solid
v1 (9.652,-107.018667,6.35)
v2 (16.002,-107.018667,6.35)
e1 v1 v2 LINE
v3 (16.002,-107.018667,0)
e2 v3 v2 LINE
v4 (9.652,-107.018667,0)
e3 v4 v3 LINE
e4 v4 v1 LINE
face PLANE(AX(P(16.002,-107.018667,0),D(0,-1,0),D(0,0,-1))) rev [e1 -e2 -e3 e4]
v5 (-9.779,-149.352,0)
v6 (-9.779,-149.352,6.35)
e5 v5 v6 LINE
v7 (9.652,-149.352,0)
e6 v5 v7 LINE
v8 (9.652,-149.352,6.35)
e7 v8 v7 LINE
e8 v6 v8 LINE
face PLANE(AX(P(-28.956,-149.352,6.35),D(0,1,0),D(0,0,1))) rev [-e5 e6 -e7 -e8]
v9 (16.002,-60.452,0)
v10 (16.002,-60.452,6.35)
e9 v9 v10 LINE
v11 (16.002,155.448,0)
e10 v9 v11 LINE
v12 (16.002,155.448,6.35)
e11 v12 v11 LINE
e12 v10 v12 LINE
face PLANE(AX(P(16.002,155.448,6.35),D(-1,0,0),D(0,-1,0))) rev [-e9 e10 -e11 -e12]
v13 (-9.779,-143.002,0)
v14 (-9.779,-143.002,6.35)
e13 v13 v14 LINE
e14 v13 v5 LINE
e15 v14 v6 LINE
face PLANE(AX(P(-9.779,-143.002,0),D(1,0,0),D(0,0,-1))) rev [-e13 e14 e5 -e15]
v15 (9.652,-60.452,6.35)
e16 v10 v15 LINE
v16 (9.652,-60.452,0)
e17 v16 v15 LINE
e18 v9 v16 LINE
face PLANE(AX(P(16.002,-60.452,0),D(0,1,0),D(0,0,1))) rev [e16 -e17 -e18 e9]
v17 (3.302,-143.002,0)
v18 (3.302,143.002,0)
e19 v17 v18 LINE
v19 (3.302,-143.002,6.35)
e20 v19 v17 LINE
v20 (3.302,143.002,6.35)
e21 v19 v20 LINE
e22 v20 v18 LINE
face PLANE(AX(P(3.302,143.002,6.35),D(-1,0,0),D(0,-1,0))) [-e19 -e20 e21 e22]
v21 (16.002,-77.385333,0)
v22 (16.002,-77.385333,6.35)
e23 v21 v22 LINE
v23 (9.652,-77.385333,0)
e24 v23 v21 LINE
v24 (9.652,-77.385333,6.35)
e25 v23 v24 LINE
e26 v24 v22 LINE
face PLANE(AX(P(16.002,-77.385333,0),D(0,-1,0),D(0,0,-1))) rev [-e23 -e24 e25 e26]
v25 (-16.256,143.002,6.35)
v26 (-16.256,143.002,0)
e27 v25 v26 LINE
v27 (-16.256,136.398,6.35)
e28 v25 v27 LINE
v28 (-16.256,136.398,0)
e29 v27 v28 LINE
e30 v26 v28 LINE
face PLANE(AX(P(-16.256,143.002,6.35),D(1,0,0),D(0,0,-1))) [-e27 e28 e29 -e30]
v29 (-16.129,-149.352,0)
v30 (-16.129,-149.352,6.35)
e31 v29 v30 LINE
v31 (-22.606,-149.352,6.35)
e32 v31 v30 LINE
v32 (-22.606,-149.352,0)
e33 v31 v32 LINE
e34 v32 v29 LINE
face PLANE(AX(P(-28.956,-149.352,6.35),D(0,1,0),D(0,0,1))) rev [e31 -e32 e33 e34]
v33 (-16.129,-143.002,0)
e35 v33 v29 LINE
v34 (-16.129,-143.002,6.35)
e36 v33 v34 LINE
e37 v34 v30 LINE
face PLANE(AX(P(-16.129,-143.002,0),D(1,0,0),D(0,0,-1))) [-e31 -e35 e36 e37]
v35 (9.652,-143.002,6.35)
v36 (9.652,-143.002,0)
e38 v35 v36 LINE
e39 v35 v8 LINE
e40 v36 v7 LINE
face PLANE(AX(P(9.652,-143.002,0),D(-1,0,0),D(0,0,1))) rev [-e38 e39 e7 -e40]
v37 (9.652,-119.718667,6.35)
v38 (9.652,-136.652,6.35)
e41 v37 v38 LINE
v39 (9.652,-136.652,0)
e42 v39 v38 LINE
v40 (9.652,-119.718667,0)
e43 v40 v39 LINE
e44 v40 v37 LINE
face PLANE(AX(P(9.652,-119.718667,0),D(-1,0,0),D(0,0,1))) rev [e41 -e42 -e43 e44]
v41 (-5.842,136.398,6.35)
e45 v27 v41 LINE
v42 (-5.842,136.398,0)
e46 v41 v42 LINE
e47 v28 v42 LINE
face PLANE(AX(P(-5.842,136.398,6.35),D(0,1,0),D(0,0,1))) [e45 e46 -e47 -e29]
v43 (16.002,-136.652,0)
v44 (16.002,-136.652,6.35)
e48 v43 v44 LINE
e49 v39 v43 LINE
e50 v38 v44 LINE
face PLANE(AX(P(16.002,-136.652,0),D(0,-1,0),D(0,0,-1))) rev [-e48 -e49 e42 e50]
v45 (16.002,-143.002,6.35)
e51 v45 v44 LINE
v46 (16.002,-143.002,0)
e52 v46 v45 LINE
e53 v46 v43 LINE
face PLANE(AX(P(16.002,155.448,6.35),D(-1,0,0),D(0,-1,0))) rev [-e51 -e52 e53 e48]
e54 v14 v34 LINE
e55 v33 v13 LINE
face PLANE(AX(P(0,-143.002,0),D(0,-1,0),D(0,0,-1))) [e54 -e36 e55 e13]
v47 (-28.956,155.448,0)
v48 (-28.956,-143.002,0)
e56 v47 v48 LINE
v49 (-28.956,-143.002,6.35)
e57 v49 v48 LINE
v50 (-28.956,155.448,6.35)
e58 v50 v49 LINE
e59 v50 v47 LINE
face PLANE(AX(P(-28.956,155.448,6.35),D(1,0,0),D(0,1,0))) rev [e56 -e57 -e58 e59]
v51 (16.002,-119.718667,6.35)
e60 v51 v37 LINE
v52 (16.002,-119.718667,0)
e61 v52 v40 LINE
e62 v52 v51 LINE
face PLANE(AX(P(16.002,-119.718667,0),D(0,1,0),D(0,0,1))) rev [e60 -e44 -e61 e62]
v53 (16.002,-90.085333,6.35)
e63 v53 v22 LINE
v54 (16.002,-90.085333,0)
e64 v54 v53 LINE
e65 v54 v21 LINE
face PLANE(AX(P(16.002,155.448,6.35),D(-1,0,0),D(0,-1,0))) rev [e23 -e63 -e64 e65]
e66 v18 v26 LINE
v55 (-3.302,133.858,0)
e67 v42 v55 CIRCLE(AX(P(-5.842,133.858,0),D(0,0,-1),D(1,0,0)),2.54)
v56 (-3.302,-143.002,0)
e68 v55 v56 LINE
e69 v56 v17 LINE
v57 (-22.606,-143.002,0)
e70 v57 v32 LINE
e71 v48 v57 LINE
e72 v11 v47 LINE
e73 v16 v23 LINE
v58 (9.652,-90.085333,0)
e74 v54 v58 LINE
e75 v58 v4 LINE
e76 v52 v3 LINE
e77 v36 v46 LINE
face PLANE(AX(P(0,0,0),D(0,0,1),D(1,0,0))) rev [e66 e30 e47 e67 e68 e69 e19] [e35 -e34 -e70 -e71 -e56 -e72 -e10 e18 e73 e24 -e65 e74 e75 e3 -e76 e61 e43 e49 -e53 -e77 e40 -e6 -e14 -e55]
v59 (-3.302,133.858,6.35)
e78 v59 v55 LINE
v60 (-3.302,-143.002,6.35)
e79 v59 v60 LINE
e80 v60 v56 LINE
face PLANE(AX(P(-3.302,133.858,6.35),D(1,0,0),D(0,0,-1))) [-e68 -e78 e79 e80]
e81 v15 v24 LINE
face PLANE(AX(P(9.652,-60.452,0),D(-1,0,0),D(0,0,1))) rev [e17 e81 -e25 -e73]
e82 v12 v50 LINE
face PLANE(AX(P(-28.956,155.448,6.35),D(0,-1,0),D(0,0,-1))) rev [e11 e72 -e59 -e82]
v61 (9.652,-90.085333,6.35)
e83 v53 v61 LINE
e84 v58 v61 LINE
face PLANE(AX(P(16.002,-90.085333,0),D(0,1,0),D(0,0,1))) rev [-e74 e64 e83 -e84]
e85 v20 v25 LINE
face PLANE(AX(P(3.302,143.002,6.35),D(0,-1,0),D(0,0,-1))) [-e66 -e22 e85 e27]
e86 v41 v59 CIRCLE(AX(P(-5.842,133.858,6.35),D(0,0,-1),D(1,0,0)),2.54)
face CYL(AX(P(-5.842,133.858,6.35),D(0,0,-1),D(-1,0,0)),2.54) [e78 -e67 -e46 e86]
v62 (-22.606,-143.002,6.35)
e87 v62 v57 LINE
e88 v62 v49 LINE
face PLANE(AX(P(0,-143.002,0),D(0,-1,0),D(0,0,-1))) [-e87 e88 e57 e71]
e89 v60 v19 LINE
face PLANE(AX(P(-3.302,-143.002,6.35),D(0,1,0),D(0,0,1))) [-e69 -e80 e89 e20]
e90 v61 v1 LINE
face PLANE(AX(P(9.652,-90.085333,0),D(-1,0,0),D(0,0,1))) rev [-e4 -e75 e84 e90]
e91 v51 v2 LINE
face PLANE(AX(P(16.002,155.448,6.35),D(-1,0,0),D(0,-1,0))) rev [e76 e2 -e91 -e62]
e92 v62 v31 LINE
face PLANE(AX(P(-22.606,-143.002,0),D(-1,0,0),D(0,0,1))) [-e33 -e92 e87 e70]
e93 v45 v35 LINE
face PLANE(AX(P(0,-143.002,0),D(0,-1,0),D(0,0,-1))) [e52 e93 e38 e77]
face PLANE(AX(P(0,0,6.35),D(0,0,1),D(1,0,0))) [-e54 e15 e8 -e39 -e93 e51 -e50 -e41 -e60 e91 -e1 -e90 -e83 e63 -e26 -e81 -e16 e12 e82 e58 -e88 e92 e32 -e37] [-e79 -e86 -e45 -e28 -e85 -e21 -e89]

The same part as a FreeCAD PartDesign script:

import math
import FreeCAD as App
import Part
import Sketcher
from FreeCAD import Vector
Q = App.Units.Quantity

doc = App.newDocument("Part")
body = doc.addObject("PartDesign::Body", "Body")

# Sketch on XY plane
sketch1 = doc.addObject("Sketcher::SketchObject", "Sketch")
body.addObject(sketch1)
sketch1.AttachmentSupport = (doc.XY_Plane, [""])
sketch1.MapMode = "FlatFace"
sketch1.addGeometry([
    Part.LineSegment(Vector(-28.956, 155.448, 0), Vector(-28.956, -149.352, 0)),  # 0
    Part.LineSegment(Vector(-28.956, -149.352, 0), Vector(16.002, -149.352, 0)),  # 1
    Part.LineSegment(Vector(16.002, -149.352, 0), Vector(16.002, 155.448, 0)),  # 2
    Part.LineSegment(Vector(16.002, 155.448, 0), Vector(-28.956, 155.448, 0)),  # 3
    Part.LineSegment(Vector(-3.302, -143.002, 0), Vector(-3.302, 133.858, 0)),  # 4
    Part.ArcOfCircle(Part.Circle(Vector(-5.842, 133.858, 0), Vector(0, 0, 1), 2.54), math.radians(0), math.radians(90)),  # 5
    Part.LineSegment(Vector(-5.842, 136.398, 0), Vector(-16.256, 136.398, 0)),  # 6
    Part.LineSegment(Vector(-16.256, 136.398, 0), Vector(-16.256, 143.002, 0)),  # 7
    Part.LineSegment(Vector(-16.256, 143.002, 0), Vector(3.302, 143.002, 0)),  # 8
    Part.LineSegment(Vector(3.302, 143.002, 0), Vector(3.302, -143.002, 0)),  # 9
    Part.LineSegment(Vector(3.302, -143.002, 0), Vector(-3.302, -143.002, 0)),  # 10
], False)
sketch1.addConstraint([
    Sketcher.Constraint("Coincident", 0, 2, 1, 1),
    Sketcher.Constraint("Coincident", 1, 2, 2, 1),
    Sketcher.Constraint("Coincident", 2, 2, 3, 1),
    Sketcher.Constraint("Coincident", 3, 2, 0, 1),
    Sketcher.Constraint("Tangent", 4, 2, 5, 1),
    Sketcher.Constraint("Tangent", 5, 2, 6, 1),
    Sketcher.Constraint("Coincident", 6, 2, 7, 1),
    Sketcher.Constraint("Coincident", 7, 2, 8, 1),
    Sketcher.Constraint("Coincident", 8, 2, 9, 1),
    Sketcher.Constraint("Coincident", 9, 2, 10, 1),
    Sketcher.Constraint("Coincident", 10, 2, 4, 1),
    Sketcher.Constraint("Vertical", 0),
    Sketcher.Constraint("Horizontal", 1),
    Sketcher.Constraint("Vertical", 2),
    Sketcher.Constraint("Horizontal", 3),
    Sketcher.Constraint("Vertical", 4),
    Sketcher.Constraint("Horizontal", 6),
    Sketcher.Constraint("Vertical", 7),
    Sketcher.Constraint("Horizontal", 8),
    Sketcher.Constraint("Vertical", 9),
    Sketcher.Constraint("Horizontal", 10),
    Sketcher.Constraint("Symmetric", 8, 2, 10, 2, -1, 1),
    Sketcher.Constraint("Equal", 10, 7),
    Sketcher.Constraint("Radius", 5, Q("0.1 in")),
    Sketcher.Constraint("DistanceY", 0, 2, 0, 1, Q("12 in")),
    Sketcher.Constraint("DistanceY", 4, 1, 4, 2, Q("10.9 in")),
    Sketcher.Constraint("DistanceX", 1, 1, 1, 2, Q("1.77 in")),
    Sketcher.Constraint("DistanceX", 6, 2, 6, 1, Q("0.41 in")),
    Sketcher.Constraint("DistanceX", 8, 1, 8, 2, Q("0.77 in")),
    Sketcher.Constraint("DistanceX", 3, 2, 6, 2, Q("0.5 in")),
    Sketcher.Constraint("DistanceY", 0, 2, -1, 1, Q("5.88 in")),
])
pad1 = doc.addObject("PartDesign::Pad", "Pad")
body.addObject(pad1)
pad1.Profile = sketch1
pad1.Length = Q("0.25 in")

# Sketch on YZ plane
sketch2 = doc.addObject("Sketcher::SketchObject", "Sketch001")
body.addObject(sketch2)
sketch2.AttachmentSupport = (doc.YZ_Plane, [""])
sketch2.MapMode = "FlatFace"
sketch2.AttachmentOffset = App.Placement(Vector(0, 0, 0.63 * 25.4), App.Rotation())
sketch2.addGeometry([
    Part.LineSegment(Vector(-60.452, -222.25, 0), Vector(-47.752, -222.25, 0)),  # 0
    Part.LineSegment(Vector(-47.752, -222.25, 0), Vector(-47.752, 6.35, 0)),  # 1
    Part.LineSegment(Vector(-47.752, 6.35, 0), Vector(-149.352, 6.35, 0)),  # 2
    Part.LineSegment(Vector(-149.352, 6.35, 0), Vector(-149.352, -222.25, 0)),  # 3
    Part.LineSegment(Vector(-149.352, -222.25, 0), Vector(-136.652, -222.25, 0)),  # 4
    Part.LineSegment(Vector(-136.652, -222.25, 0), Vector(-136.652, -228.6, 0)),  # 5
    Part.LineSegment(Vector(-136.652, -228.6, 0), Vector(-119.718667, -228.6, 0)),  # 6
    Part.LineSegment(Vector(-119.718667, -228.6, 0), Vector(-119.718667, -222.25, 0)),  # 7
    Part.LineSegment(Vector(-119.718667, -222.25, 0), Vector(-107.018667, -222.25, 0)),  # 8
    Part.LineSegment(Vector(-107.018667, -222.25, 0), Vector(-107.018667, -228.6, 0)),  # 9
    Part.LineSegment(Vector(-107.018667, -228.6, 0), Vector(-90.085333, -228.6, 0)),  # 10
    Part.LineSegment(Vector(-90.085333, -228.6, 0), Vector(-90.085333, -222.25, 0)),  # 11
    Part.LineSegment(Vector(-90.085333, -222.25, 0), Vector(-77.385333, -222.25, 0)),  # 12
    Part.LineSegment(Vector(-77.385333, -222.25, 0), Vector(-77.385333, -228.6, 0)),  # 13
    Part.LineSegment(Vector(-77.385333, -228.6, 0), Vector(-60.452, -228.6, 0)),  # 14
    Part.LineSegment(Vector(-60.452, -228.6, 0), Vector(-60.452, -222.25, 0)),  # 15
    Part.LineSegment(Vector(-111.512, -11.4, 0), Vector(-116.592, -11.4, 0)),  # 16
    Part.ArcOfCircle(Part.Circle(Vector(-116.592, -9.9, 0), Vector(0, 0, 1), 1.5), math.radians(90), math.radians(270)),  # 17
    Part.LineSegment(Vector(-116.592, -8.4, 0), Vector(-111.512, -8.4, 0)),  # 18
    Part.ArcOfCircle(Part.Circle(Vector(-111.512, -9.9, 0), Vector(0, 0, 1), 1.5), math.radians(-90), math.radians(90)),  # 19
    Part.ArcOfCircle(Part.Circle(Vector(-111.512, -40.9, 0), Vector(0, 0, 1), 1.5), math.radians(-90), math.radians(90)),  # 20
    Part.LineSegment(Vector(-111.512, -42.4, 0), Vector(-116.592, -42.4, 0)),  # 21
    Part.ArcOfCircle(Part.Circle(Vector(-116.592, -40.9, 0), Vector(0, 0, 1), 1.5), math.radians(90), math.radians(270)),  # 22
    Part.LineSegment(Vector(-116.592, -39.4, 0), Vector(-111.512, -39.4, 0)),  # 23
    Part.LineSegment(Vector(-96.012, -36.4, 0), Vector(-101.092, -36.4, 0)),  # 24
    Part.ArcOfCircle(Part.Circle(Vector(-101.092, -25.4, 0), Vector(0, 0, 1), 11), math.radians(90), math.radians(270)),  # 25
    Part.LineSegment(Vector(-101.092, -14.4, 0), Vector(-96.012, -14.4, 0)),  # 26
    Part.ArcOfCircle(Part.Circle(Vector(-96.012, -25.4, 0), Vector(0, 0, 1), 11), math.radians(-90), math.radians(90)),  # 27
    Part.LineSegment(Vector(-80.512, -11.4, 0), Vector(-85.592, -11.4, 0)),  # 28
    Part.ArcOfCircle(Part.Circle(Vector(-85.592, -9.9, 0), Vector(0, 0, 1), 1.5), math.radians(90), math.radians(270)),  # 29
    Part.LineSegment(Vector(-85.592, -8.4, 0), Vector(-80.512, -8.4, 0)),  # 30
    Part.ArcOfCircle(Part.Circle(Vector(-80.512, -9.9, 0), Vector(0, 0, 1), 1.5), math.radians(-90), math.radians(90)),  # 31
    Part.LineSegment(Vector(-80.512, -42.4, 0), Vector(-85.592, -42.4, 0)),  # 32
    Part.ArcOfCircle(Part.Circle(Vector(-85.592, -40.9, 0), Vector(0, 0, 1), 1.5), math.radians(90), math.radians(270)),  # 33
    Part.LineSegment(Vector(-85.592, -39.4, 0), Vector(-80.512, -39.4, 0)),  # 34
    Part.ArcOfCircle(Part.Circle(Vector(-80.512, -40.9, 0), Vector(0, 0, 1), 1.5), math.radians(-90), math.radians(90)),  # 35
], False)
sketch2.addConstraint([
    Sketcher.Constraint("Coincident", 0, 2, 1, 1),
    Sketcher.Constraint("Coincident", 1, 2, 2, 1),
    Sketcher.Constraint("Coincident", 2, 2, 3, 1),
    Sketcher.Constraint("Coincident", 3, 2, 4, 1),
    Sketcher.Constraint("Coincident", 4, 2, 5, 1),
    Sketcher.Constraint("Coincident", 5, 2, 6, 1),
    Sketcher.Constraint("Coincident", 6, 2, 7, 1),
    Sketcher.Constraint("Coincident", 7, 2, 8, 1),
    Sketcher.Constraint("Coincident", 8, 2, 9, 1),
    Sketcher.Constraint("Coincident", 9, 2, 10, 1),
    Sketcher.Constraint("Coincident", 10, 2, 11, 1),
    Sketcher.Constraint("Coincident", 11, 2, 12, 1),
    Sketcher.Constraint("Coincident", 12, 2, 13, 1),
    Sketcher.Constraint("Coincident", 13, 2, 14, 1),
    Sketcher.Constraint("Coincident", 14, 2, 15, 1),
    Sketcher.Constraint("Coincident", 15, 2, 0, 1),
    Sketcher.Constraint("Tangent", 16, 2, 17, 2),
    Sketcher.Constraint("Tangent", 17, 1, 18, 1),
    Sketcher.Constraint("Tangent", 18, 2, 19, 2),
    Sketcher.Constraint("Tangent", 19, 1, 16, 1),
    Sketcher.Constraint("Tangent", 20, 1, 21, 1),
    Sketcher.Constraint("Tangent", 21, 2, 22, 2),
    Sketcher.Constraint("Tangent", 22, 1, 23, 1),
    Sketcher.Constraint("Tangent", 23, 2, 20, 2),
    Sketcher.Constraint("Tangent", 24, 2, 25, 2),
    Sketcher.Constraint("Tangent", 25, 1, 26, 1),
    Sketcher.Constraint("Tangent", 26, 2, 27, 2),
    Sketcher.Constraint("Tangent", 27, 1, 24, 1),
    Sketcher.Constraint("Tangent", 28, 2, 29, 2),
    Sketcher.Constraint("Tangent", 29, 1, 30, 1),
    Sketcher.Constraint("Tangent", 30, 2, 31, 2),
    Sketcher.Constraint("Tangent", 31, 1, 28, 1),
    Sketcher.Constraint("Tangent", 32, 2, 33, 2),
    Sketcher.Constraint("Tangent", 33, 1, 34, 1),
    Sketcher.Constraint("Tangent", 34, 2, 35, 2),
    Sketcher.Constraint("Tangent", 35, 1, 32, 1),
    Sketcher.Constraint("Horizontal", 0),
    Sketcher.Constraint("Vertical", 1),
    Sketcher.Constraint("Horizontal", 2),
    Sketcher.Constraint("Vertical", 3),
    Sketcher.Constraint("Horizontal", 4),
    Sketcher.Constraint("Vertical", 5),
    Sketcher.Constraint("Horizontal", 6),
    Sketcher.Constraint("Vertical", 7),
    Sketcher.Constraint("Horizontal", 8),
    Sketcher.Constraint("Vertical", 9),
    Sketcher.Constraint("Horizontal", 10),
    Sketcher.Constraint("Vertical", 11),
    Sketcher.Constraint("Horizontal", 12),
    Sketcher.Constraint("Vertical", 13),
    Sketcher.Constraint("Horizontal", 14),
    Sketcher.Constraint("Vertical", 15),
    Sketcher.Constraint("Horizontal", 16),
    Sketcher.Constraint("Horizontal", 18),
    Sketcher.Constraint("Horizontal", 21),
    Sketcher.Constraint("Horizontal", 23),
    Sketcher.Constraint("Horizontal", 24),
    Sketcher.Constraint("Horizontal", 26),
    Sketcher.Constraint("Horizontal", 28),
    Sketcher.Constraint("Horizontal", 30),
    Sketcher.Constraint("Horizontal", 32),
    Sketcher.Constraint("Horizontal", 34),
    Sketcher.Constraint("Equal", 19, 20),
    Sketcher.Constraint("Equal", 22, 29),
    Sketcher.Constraint("Equal", 31, 33),
    Sketcher.Constraint("Horizontal", 19, 3, 29, 3),
    Sketcher.Constraint("Horizontal", 22, 3, 33, 3),
    Sketcher.Constraint("Horizontal", 0, 2, 3, 2),
    Sketcher.Constraint("Horizontal", 4, 2, 7, 2),
    Sketcher.Constraint("Horizontal", 6, 2, 9, 2),
    Sketcher.Constraint("Horizontal", 8, 2, 11, 2),
    Sketcher.Constraint("Horizontal", 10, 2, 13, 2),
    Sketcher.Constraint("Vertical", 19, 3, 20, 3),
    Sketcher.Constraint("Vertical", 17, 3, 22, 3),
    Sketcher.Constraint("Vertical", 29, 3, 33, 3),
    Sketcher.Constraint("Vertical", 31, 3, 35, 3),
    Sketcher.Constraint("Equal", 0, 4),
    Sketcher.Constraint("Equal", 4, 8),
    Sketcher.Constraint("Equal", 6, 10),
    Sketcher.Constraint("Equal", 8, 12),
    Sketcher.Constraint("Equal", 10, 14),
    Sketcher.Constraint("Equal", 23, 24),
    Sketcher.Constraint("Equal", 26, 28),
    Sketcher.Constraint("DistanceX", 2, 2, 2, 1, Q("4 in")),
    Sketcher.Constraint("DistanceY", 1, 1, 1, 2, Q("9 in")),
    Sketcher.Constraint("DistanceX", 0, 1, 0, 2, Q("0.5 in")),
    Sketcher.Constraint("DistanceX", 16, 2, 16, 1, Q("0.2 in")),
    Sketcher.Constraint("DistanceY", 25, 3, -1, 1, Q("1 in")),
    Sketcher.Constraint("DistanceY", 5, 2, -1, 1, Q("9 in")),
    Sketcher.Constraint("DistanceY", 5, 2, 5, 1, Q("0.25 in")),
    Sketcher.Constraint("DistanceX", 27, 3, 0, 2, Q("1.9 in")),
    Sketcher.Constraint("DistanceX", 25, 3, -1, 1, Q("3.98 in")),
    Sketcher.Constraint("Radius", 17, Q("1.5 mm")),
    Sketcher.Constraint("Radius", 25, Q("11 mm")),
    Sketcher.Constraint("DistanceX", 17, 3, -1, 1, Q("116.592 mm")),
    Sketcher.Constraint("DistanceY", 17, 3, -1, 1, Q("9.9 mm")),
    Sketcher.Constraint("DistanceY", 20, 3, -1, 1, Q("40.9 mm")),
    Sketcher.Constraint("DistanceX", 29, 3, -1, 1, Q("85.592 mm")),
])
pad2 = doc.addObject("PartDesign::Pad", "Pad001")
body.addObject(pad2)
pad2.Profile = sketch2
pad2.Length = Q("0.25 in")
pad2.Reversed = True

# Sketch on YZ plane
sketch3 = doc.addObject("Sketcher::SketchObject", "Sketch002")
body.addObject(sketch3)
sketch3.AttachmentSupport = (doc.YZ_Plane, [""])
sketch3.MapMode = "FlatFace"
sketch3.AttachmentOffset = App.Placement(Vector(0, 0, 0.38 * 25.4), App.Rotation())
sketch3.addGeometry([
    Part.LineSegment(Vector(-143.002, -222.25, 0), Vector(-149.352, -222.25, 0)),
    Part.LineSegment(Vector(-149.352, -222.25, 0), Vector(-149.352, 0, 0)),
    Part.LineSegment(Vector(-149.352, 0, 0), Vector(-143.002, 0, 0)),
    Part.LineSegment(Vector(-143.002, 0, 0), Vector(-143.002, -222.25, 0)),
], False)
sketch3.addConstraint([
    Sketcher.Constraint("Coincident", 0, 2, 1, 1),
    Sketcher.Constraint("Coincident", 1, 2, 2, 1),
    Sketcher.Constraint("Coincident", 2, 2, 3, 1),
    Sketcher.Constraint("Coincident", 3, 2, 0, 1),
    Sketcher.Constraint("Horizontal", 0),
    Sketcher.Constraint("Vertical", 1),
    Sketcher.Constraint("Horizontal", 2),
    Sketcher.Constraint("Vertical", 3),
    Sketcher.Constraint("PointOnObject", 1, 2, -1),
    Sketcher.Constraint("DistanceX", 0, 2, 0, 1, Q("0.25 in")),
    Sketcher.Constraint("DistanceY", 1, 1, 1, 2, Q("8.75 in")),
    Sketcher.Constraint("DistanceX", 0, 2, -1, 1, Q("5.88 in")),
])
pad3 = doc.addObject("PartDesign::Pad", "Pad002")
body.addObject(pad3)
pad3.Profile = sketch3
pad3.Length = Q("1.52 in")
pad3.Reversed = True

# Sketch on YZ plane
sketch4 = doc.addObject("Sketcher::SketchObject", "Sketch003")
body.addObject(sketch4)
sketch4.AttachmentSupport = (doc.YZ_Plane, [""])
sketch4.MapMode = "FlatFace"
sketch4.AttachmentOffset = App.Placement(Vector(0, 0, 0.63 * 25.4), App.Rotation())
sketch4.addGeometry([
    Part.LineSegment(Vector(-8.630244, 0, 0), Vector(-288.065894, 0, 0)),
    Part.LineSegment(Vector(-288.065894, 0, 0), Vector(-288.065894, -327.022739, 0)),
    Part.LineSegment(Vector(-288.065894, -327.022739, 0), Vector(-8.630244, -327.022739, 0)),
    Part.LineSegment(Vector(-8.630244, -327.022739, 0), Vector(-8.630244, 0, 0)),
], False)
sketch4.addConstraint([
    Sketcher.Constraint("Coincident", 0, 2, 1, 1),
    Sketcher.Constraint("Coincident", 1, 2, 2, 1),
    Sketcher.Constraint("Coincident", 2, 2, 3, 1),
    Sketcher.Constraint("Coincident", 3, 2, 0, 1),
    Sketcher.Constraint("Horizontal", 0),
    Sketcher.Constraint("Vertical", 1),
    Sketcher.Constraint("Horizontal", 2),
    Sketcher.Constraint("Vertical", 3),
    Sketcher.Constraint("PointOnObject", 0, 2, -1),
    Sketcher.Constraint("DistanceX", 0, 2, 0, 1, Q("279.43565 mm")),
    Sketcher.Constraint("DistanceY", 1, 2, 1, 1, Q("327.022739 mm")),
    Sketcher.Constraint("DistanceX", 0, 2, -1, 1, Q("288.065894 mm")),
])
pocket1 = doc.addObject("PartDesign::Pocket", "Pocket")
body.addObject(pocket1)
pocket1.Profile = sketch4
pocket1.Type = "ThroughAll"

# Sketch on XZ plane
sketch5 = doc.addObject("Sketcher::SketchObject", "Sketch004")
body.addObject(sketch5)
sketch5.AttachmentSupport = (doc.XZ_Plane, [""])
sketch5.MapMode = "FlatFace"
sketch5.AttachmentOffset = App.Placement(Vector(0, 0, 5.88 * 25.4), App.Rotation())
sketch5.addGeometry([
    Part.LineSegment(Vector(-16.129, 6.35, 0), Vector(-16.129, 0, 0)),  # 0
    Part.LineSegment(Vector(-16.129, 0, 0), Vector(-9.779, 0, 0)),  # 1
    Part.LineSegment(Vector(-9.779, 0, 0), Vector(-9.779, 6.35, 0)),  # 2
    Part.LineSegment(Vector(-9.779, 6.35, 0), Vector(-16.129, 6.35, 0)),  # 3
    Part.LineSegment(Vector(9.652, 6.35, 0), Vector(9.652, 0, 0)),  # 4
    Part.LineSegment(Vector(9.652, 0, 0), Vector(16.002, 0, 0)),  # 5
    Part.LineSegment(Vector(16.002, 0, 0), Vector(16.002, 6.35, 0)),  # 6
    Part.LineSegment(Vector(16.002, 6.35, 0), Vector(9.652, 6.35, 0)),  # 7
    Part.LineSegment(Vector(-28.956, 6.35, 0), Vector(-28.956, 0, 0)),  # 8
    Part.LineSegment(Vector(-28.956, 0, 0), Vector(-22.606, 0, 0)),  # 9
    Part.LineSegment(Vector(-22.606, 0, 0), Vector(-22.606, 6.35, 0)),  # 10
    Part.LineSegment(Vector(-22.606, 6.35, 0), Vector(-28.956, 6.35, 0)),  # 11
    Part.LineSegment(Vector(9.652, -128.5875, 0), Vector(9.652, -141.2875, 0)),  # 12
    Part.LineSegment(Vector(9.652, -141.2875, 0), Vector(16.002, -141.2875, 0)),  # 13
    Part.LineSegment(Vector(16.002, -141.2875, 0), Vector(16.002, -128.5875, 0)),  # 14
    Part.LineSegment(Vector(16.002, -128.5875, 0), Vector(9.652, -128.5875, 0)),  # 15
    Part.LineSegment(Vector(9.652, -47.625, 0), Vector(9.652, -60.325, 0)),  # 16
    Part.LineSegment(Vector(9.652, -60.325, 0), Vector(16.002, -60.325, 0)),  # 17
    Part.LineSegment(Vector(16.002, -60.325, 0), Vector(16.002, -47.625, 0)),  # 18
    Part.LineSegment(Vector(16.002, -47.625, 0), Vector(9.652, -47.625, 0)),  # 19
    Part.LineSegment(Vector(9.652, -155.575, 0), Vector(9.652, -168.275, 0)),  # 20
    Part.LineSegment(Vector(9.652, -168.275, 0), Vector(16.002, -168.275, 0)),  # 21
    Part.LineSegment(Vector(16.002, -168.275, 0), Vector(16.002, -155.575, 0)),  # 22
    Part.LineSegment(Vector(16.002, -155.575, 0), Vector(9.652, -155.575, 0)),  # 23
], False)
sketch5.addConstraint([
    Sketcher.Constraint("Coincident", 0, 2, 1, 1),
    Sketcher.Constraint("Coincident", 1, 2, 2, 1),
    Sketcher.Constraint("Coincident", 2, 2, 3, 1),
    Sketcher.Constraint("Coincident", 3, 2, 0, 1),
    Sketcher.Constraint("Coincident", 4, 2, 5, 1),
    Sketcher.Constraint("Coincident", 5, 2, 6, 1),
    Sketcher.Constraint("Coincident", 6, 2, 7, 1),
    Sketcher.Constraint("Coincident", 7, 2, 4, 1),
    Sketcher.Constraint("Coincident", 8, 2, 9, 1),
    Sketcher.Constraint("Coincident", 9, 2, 10, 1),
    Sketcher.Constraint("Coincident", 10, 2, 11, 1),
    Sketcher.Constraint("Coincident", 11, 2, 8, 1),
    Sketcher.Constraint("Coincident", 12, 2, 13, 1),
    Sketcher.Constraint("Coincident", 13, 2, 14, 1),
    Sketcher.Constraint("Coincident", 14, 2, 15, 1),
    Sketcher.Constraint("Coincident", 15, 2, 12, 1),
    Sketcher.Constraint("Coincident", 16, 2, 17, 1),
    Sketcher.Constraint("Coincident", 17, 2, 18, 1),
    Sketcher.Constraint("Coincident", 18, 2, 19, 1),
    Sketcher.Constraint("Coincident", 19, 2, 16, 1),
    Sketcher.Constraint("Coincident", 20, 2, 21, 1),
    Sketcher.Constraint("Coincident", 21, 2, 22, 1),
    Sketcher.Constraint("Coincident", 22, 2, 23, 1),
    Sketcher.Constraint("Coincident", 23, 2, 20, 1),
    Sketcher.Constraint("Vertical", 0),
    Sketcher.Constraint("Horizontal", 1),
    Sketcher.Constraint("Vertical", 2),
    Sketcher.Constraint("Horizontal", 3),
    Sketcher.Constraint("Vertical", 4),
    Sketcher.Constraint("Horizontal", 5),
    Sketcher.Constraint("Vertical", 6),
    Sketcher.Constraint("Horizontal", 7),
    Sketcher.Constraint("Vertical", 8),
    Sketcher.Constraint("Horizontal", 9),
    Sketcher.Constraint("Vertical", 10),
    Sketcher.Constraint("Horizontal", 11),
    Sketcher.Constraint("Vertical", 12),
    Sketcher.Constraint("Horizontal", 13),
    Sketcher.Constraint("Vertical", 14),
    Sketcher.Constraint("Horizontal", 15),
    Sketcher.Constraint("Vertical", 16),
    Sketcher.Constraint("Horizontal", 17),
    Sketcher.Constraint("Vertical", 18),
    Sketcher.Constraint("Horizontal", 19),
    Sketcher.Constraint("Vertical", 20),
    Sketcher.Constraint("Horizontal", 21),
    Sketcher.Constraint("Vertical", 22),
    Sketcher.Constraint("Horizontal", 23),
    Sketcher.Constraint("PointOnObject", 0, 2, -1),
    Sketcher.Constraint("PointOnObject", 4, 2, -1),
    Sketcher.Constraint("PointOnObject", 8, 2, -1),
    Sketcher.Constraint("Horizontal", 3, 2, 6, 2),
    Sketcher.Constraint("Horizontal", 7, 2, 10, 2),
    Sketcher.Constraint("Vertical", 7, 2, 12, 2),
    Sketcher.Constraint("Vertical", 6, 2, 13, 2),
    Sketcher.Constraint("Vertical", 15, 2, 16, 2),
    Sketcher.Constraint("Vertical", 14, 2, 17, 2),
    Sketcher.Constraint("Vertical", 19, 2, 20, 2),
    Sketcher.Constraint("Vertical", 18, 2, 21, 2),
    Sketcher.Constraint("Equal", 3, 5),
    Sketcher.Constraint("Equal", 7, 9),
    Sketcher.Constraint("Equal", 23, 0),
    Sketcher.Constraint("Equal", 14, 16),
    Sketcher.Constraint("Equal", 18, 20),
    Sketcher.Constraint("DistanceY", 12, 2, 12, 1, Q("0.5 in")),
    Sketcher.Constraint("DistanceX", 1, 1, 1, 2, Q("0.25 in")),
    Sketcher.Constraint("DistanceX", -1, 1, 4, 2, Q("0.38 in")),
    Sketcher.Constraint("DistanceX", 8, 2, -1, 1, Q("1.14 in")),
    Sketcher.Constraint("DistanceY", 20, 2, 16, 2, Q("4.25 in")),
    Sketcher.Constraint("DistanceX", 0, 2, -1, 1, Q("0.635 in")),
    Sketcher.Constraint("DistanceY", 12, 2, -1, 1, Q("5.5625 in")),
    Sketcher.Constraint("DistanceY", 16, 2, -1, 1, Q("2.375 in")),
])
pocket2 = doc.addObject("PartDesign::Pocket", "Pocket001")
body.addObject(pocket2)
pocket2.Profile = sketch5
pocket2.Length = Q("0.25 in")

# Sketch on XY plane
sketch6 = doc.addObject("Sketcher::SketchObject", "Sketch005")
body.addObject(sketch6)
sketch6.AttachmentSupport = (doc.XY_Plane, [""])
sketch6.MapMode = "FlatFace"
sketch6.AttachmentOffset = App.Placement(Vector(0, 0, 0.25 * 25.4), App.Rotation())
sketch6.addGeometry([
    Part.LineSegment(Vector(9.652, -60.452, 0), Vector(9.652, -77.385333, 0)),  # 0
    Part.LineSegment(Vector(9.652, -77.385333, 0), Vector(16.002, -77.385333, 0)),  # 1
    Part.LineSegment(Vector(16.002, -77.385333, 0), Vector(16.002, -60.452, 0)),  # 2
    Part.LineSegment(Vector(16.002, -60.452, 0), Vector(9.652, -60.452, 0)),  # 3
    Part.LineSegment(Vector(9.652, -90.085333, 0), Vector(9.652, -107.018667, 0)),  # 4
    Part.LineSegment(Vector(9.652, -107.018667, 0), Vector(16.002, -107.018667, 0)),  # 5
    Part.LineSegment(Vector(16.002, -107.018667, 0), Vector(16.002, -90.085333, 0)),  # 6
    Part.LineSegment(Vector(16.002, -90.085333, 0), Vector(9.652, -90.085333, 0)),  # 7
    Part.LineSegment(Vector(9.652, -119.718667, 0), Vector(9.652, -136.652, 0)),  # 8
    Part.LineSegment(Vector(9.652, -136.652, 0), Vector(16.002, -136.652, 0)),  # 9
    Part.LineSegment(Vector(16.002, -136.652, 0), Vector(16.002, -119.718667, 0)),  # 10
    Part.LineSegment(Vector(16.002, -119.718667, 0), Vector(9.652, -119.718667, 0)),  # 11
], False)
sketch6.addConstraint([
    Sketcher.Constraint("Coincident", 0, 2, 1, 1),
    Sketcher.Constraint("Coincident", 1, 2, 2, 1),
    Sketcher.Constraint("Coincident", 2, 2, 3, 1),
    Sketcher.Constraint("Coincident", 3, 2, 0, 1),
    Sketcher.Constraint("Coincident", 4, 2, 5, 1),
    Sketcher.Constraint("Coincident", 5, 2, 6, 1),
    Sketcher.Constraint("Coincident", 6, 2, 7, 1),
    Sketcher.Constraint("Coincident", 7, 2, 4, 1),
    Sketcher.Constraint("Coincident", 8, 2, 9, 1),
    Sketcher.Constraint("Coincident", 9, 2, 10, 1),
    Sketcher.Constraint("Coincident", 10, 2, 11, 1),
    Sketcher.Constraint("Coincident", 11, 2, 8, 1),
    Sketcher.Constraint("Vertical", 0),
    Sketcher.Constraint("Horizontal", 1),
    Sketcher.Constraint("Vertical", 2),
    Sketcher.Constraint("Horizontal", 3),
    Sketcher.Constraint("Vertical", 4),
    Sketcher.Constraint("Horizontal", 5),
    Sketcher.Constraint("Vertical", 6),
    Sketcher.Constraint("Horizontal", 7),
    Sketcher.Constraint("Vertical", 8),
    Sketcher.Constraint("Horizontal", 9),
    Sketcher.Constraint("Vertical", 10),
    Sketcher.Constraint("Horizontal", 11),
    Sketcher.Constraint("Vertical", 3, 2, 4, 2),
    Sketcher.Constraint("Vertical", 2, 2, 5, 2),
    Sketcher.Constraint("Vertical", 7, 2, 8, 2),
    Sketcher.Constraint("Vertical", 6, 2, 9, 2),
    Sketcher.Constraint("Equal", 2, 4),
    Sketcher.Constraint("Equal", 6, 8),
    Sketcher.Constraint("DistanceX", 1, 1, 1, 2, Q("0.25 in")),
    Sketcher.Constraint("DistanceY", 6, 2, 1, 2, Q("0.5 in")),
    Sketcher.Constraint("DistanceY", 10, 2, 5, 2, Q("0.5 in")),
    Sketcher.Constraint("DistanceX", -1, 1, 0, 2, Q("0.38 in")),
    Sketcher.Constraint("DistanceY", 2, 2, -1, 1, Q("2.38 in")),
    Sketcher.Constraint("DistanceY", 8, 2, -1, 1, Q("5.38 in")),
])
pocket3 = doc.addObject("PartDesign::Pocket", "Pocket002")
body.addObject(pocket3)
pocket3.Profile = sketch6
pocket3.Type = "ThroughAll"

doc.recompute()
